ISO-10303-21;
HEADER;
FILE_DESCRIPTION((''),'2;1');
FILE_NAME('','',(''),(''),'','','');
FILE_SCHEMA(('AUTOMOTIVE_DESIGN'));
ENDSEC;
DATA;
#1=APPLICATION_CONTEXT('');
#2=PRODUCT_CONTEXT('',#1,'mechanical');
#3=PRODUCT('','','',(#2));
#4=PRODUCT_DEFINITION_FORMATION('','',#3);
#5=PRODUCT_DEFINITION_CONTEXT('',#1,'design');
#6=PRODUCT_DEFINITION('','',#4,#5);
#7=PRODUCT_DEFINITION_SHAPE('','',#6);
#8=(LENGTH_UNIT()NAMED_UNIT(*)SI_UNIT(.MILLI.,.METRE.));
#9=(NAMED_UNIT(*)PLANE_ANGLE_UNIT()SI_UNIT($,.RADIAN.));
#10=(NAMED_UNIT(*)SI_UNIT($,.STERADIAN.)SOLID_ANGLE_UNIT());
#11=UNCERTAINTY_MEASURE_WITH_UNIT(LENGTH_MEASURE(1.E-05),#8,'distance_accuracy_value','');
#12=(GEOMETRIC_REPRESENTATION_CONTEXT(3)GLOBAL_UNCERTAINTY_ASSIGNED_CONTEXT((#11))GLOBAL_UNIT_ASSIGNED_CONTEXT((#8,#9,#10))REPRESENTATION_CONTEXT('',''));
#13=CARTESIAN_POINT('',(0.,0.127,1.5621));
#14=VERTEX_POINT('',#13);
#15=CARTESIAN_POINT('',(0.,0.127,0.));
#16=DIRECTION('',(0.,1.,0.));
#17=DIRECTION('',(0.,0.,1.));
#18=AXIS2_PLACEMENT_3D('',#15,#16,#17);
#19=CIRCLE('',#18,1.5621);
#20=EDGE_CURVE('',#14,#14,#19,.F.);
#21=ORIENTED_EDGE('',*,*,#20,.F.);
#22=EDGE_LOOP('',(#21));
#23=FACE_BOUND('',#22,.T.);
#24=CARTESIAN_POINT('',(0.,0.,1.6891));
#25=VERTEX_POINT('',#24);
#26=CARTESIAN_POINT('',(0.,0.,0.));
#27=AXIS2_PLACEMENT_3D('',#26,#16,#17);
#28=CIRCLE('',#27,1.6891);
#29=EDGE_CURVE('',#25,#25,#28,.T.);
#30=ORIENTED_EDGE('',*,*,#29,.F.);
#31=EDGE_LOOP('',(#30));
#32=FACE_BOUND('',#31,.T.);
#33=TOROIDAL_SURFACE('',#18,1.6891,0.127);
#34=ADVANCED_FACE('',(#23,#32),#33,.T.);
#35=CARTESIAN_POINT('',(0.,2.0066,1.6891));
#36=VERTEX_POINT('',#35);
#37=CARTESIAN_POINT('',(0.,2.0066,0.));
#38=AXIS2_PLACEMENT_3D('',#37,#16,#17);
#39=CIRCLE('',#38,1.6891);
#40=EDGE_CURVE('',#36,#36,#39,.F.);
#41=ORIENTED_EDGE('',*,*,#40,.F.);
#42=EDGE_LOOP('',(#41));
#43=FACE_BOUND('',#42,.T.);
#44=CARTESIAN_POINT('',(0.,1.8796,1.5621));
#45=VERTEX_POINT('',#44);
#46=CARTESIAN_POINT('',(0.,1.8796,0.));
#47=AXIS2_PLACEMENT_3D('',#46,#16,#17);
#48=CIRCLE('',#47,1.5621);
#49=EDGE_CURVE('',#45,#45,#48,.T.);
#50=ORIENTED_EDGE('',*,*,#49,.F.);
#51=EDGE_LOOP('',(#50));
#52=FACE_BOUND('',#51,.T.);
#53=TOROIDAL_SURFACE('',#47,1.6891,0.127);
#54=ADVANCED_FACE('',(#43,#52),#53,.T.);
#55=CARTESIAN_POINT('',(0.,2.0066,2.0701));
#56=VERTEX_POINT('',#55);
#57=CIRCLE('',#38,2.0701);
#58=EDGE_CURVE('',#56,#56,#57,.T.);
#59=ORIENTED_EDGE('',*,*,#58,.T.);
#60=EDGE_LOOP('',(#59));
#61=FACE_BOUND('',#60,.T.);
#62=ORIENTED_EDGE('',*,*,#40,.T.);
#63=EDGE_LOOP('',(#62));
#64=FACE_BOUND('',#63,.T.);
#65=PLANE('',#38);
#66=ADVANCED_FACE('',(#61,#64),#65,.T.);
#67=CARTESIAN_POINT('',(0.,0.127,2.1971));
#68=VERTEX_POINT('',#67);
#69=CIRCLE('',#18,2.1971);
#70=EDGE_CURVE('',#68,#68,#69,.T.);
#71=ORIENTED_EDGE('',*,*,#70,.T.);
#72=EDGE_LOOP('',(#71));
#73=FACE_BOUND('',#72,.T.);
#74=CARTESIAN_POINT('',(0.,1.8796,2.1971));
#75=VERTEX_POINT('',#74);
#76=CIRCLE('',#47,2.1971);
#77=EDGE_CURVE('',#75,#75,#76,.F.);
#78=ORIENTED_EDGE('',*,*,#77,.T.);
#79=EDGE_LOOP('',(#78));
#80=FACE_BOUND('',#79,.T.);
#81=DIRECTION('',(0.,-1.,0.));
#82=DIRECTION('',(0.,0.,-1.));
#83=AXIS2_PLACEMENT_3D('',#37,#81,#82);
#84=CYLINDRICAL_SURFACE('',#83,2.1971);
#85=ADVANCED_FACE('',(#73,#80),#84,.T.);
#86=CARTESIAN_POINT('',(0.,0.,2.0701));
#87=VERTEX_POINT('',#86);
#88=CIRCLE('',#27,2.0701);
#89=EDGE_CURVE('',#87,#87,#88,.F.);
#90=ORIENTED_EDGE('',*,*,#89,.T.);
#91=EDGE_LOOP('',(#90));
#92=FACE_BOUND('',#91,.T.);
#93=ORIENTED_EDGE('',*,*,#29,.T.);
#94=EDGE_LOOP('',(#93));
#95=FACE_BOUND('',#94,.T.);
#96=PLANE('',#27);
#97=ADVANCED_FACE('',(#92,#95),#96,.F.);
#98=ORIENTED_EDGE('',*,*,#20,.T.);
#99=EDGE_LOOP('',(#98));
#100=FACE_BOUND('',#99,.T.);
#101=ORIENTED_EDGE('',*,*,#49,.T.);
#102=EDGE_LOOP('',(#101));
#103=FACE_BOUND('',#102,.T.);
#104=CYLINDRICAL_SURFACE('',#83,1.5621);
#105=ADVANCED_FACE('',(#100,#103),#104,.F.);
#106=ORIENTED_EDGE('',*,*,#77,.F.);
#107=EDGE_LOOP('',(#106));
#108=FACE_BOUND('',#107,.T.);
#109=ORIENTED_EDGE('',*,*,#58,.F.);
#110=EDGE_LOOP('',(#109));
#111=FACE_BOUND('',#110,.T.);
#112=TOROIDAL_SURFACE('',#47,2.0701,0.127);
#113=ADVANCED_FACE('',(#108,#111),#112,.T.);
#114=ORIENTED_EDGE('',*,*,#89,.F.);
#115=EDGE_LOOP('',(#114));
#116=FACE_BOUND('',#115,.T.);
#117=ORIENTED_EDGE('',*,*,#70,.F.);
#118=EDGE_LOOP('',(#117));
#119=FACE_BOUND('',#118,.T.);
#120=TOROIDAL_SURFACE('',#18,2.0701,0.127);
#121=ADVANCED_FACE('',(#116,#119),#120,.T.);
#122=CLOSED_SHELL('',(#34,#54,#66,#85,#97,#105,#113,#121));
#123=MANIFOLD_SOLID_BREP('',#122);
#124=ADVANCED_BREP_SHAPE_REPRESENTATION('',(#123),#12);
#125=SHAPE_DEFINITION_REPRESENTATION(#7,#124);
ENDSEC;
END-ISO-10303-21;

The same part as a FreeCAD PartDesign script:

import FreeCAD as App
import Part
import Sketcher

V = App.Vector
Q = App.Units.Quantity


def edges_at(feature, points):
    """Names of the edges that pass closest to the given points."""
    edges = feature.Shape.Edges
    near = lambda p: min(range(len(edges)), key=lambda i: edges[i].distToShape(Part.Vertex(*p))[0])
    return sorted({f"Edge{near(p) + 1}" for p in points})

doc = App.newDocument("Part")
body = doc.addObject("PartDesign::Body", "Body")

sketch1 = body.newObject("Sketcher::SketchObject", "Sketch")
sketch1.AttachmentSupport = (doc.getObject("XZ_Plane"), [""])
sketch1.MapMode = "FlatFace"
sketch1.addGeometry([
    Part.Circle(V(0, 0, 0), V(0, 0, 1), 2.2),
    Part.Circle(V(0, 0, 0), V(0, 0, 1), 1.6),
], False)
sketch1.addConstraint([
    Sketcher.Constraint("Coincident", 0, 3, -1, 1),
    Sketcher.Constraint("Coincident", 1, 3, -1, 1),
    Sketcher.Constraint("Diameter", 0, Q("0.173 in")),
    Sketcher.Constraint("Diameter", 1, Q("0.123 in")),
])
pad1 = body.newObject("PartDesign::Pad", "Pad")
pad1.Profile = sketch1
pad1.Length = Q("0.079 in")
pad1.Reversed = True
doc.recompute()

fillet = body.newObject("PartDesign::Fillet", "Fillet")
fillet.Base = (pad1, edges_at(pad1, [
    (-2.197, 0, 0),
    (-2.197, 2.007, 0),
    (-1.562, 0, 0),
    (-1.562, 2.007, 0),
]))
fillet.Radius = Q("0.005 in")

doc.recompute()
